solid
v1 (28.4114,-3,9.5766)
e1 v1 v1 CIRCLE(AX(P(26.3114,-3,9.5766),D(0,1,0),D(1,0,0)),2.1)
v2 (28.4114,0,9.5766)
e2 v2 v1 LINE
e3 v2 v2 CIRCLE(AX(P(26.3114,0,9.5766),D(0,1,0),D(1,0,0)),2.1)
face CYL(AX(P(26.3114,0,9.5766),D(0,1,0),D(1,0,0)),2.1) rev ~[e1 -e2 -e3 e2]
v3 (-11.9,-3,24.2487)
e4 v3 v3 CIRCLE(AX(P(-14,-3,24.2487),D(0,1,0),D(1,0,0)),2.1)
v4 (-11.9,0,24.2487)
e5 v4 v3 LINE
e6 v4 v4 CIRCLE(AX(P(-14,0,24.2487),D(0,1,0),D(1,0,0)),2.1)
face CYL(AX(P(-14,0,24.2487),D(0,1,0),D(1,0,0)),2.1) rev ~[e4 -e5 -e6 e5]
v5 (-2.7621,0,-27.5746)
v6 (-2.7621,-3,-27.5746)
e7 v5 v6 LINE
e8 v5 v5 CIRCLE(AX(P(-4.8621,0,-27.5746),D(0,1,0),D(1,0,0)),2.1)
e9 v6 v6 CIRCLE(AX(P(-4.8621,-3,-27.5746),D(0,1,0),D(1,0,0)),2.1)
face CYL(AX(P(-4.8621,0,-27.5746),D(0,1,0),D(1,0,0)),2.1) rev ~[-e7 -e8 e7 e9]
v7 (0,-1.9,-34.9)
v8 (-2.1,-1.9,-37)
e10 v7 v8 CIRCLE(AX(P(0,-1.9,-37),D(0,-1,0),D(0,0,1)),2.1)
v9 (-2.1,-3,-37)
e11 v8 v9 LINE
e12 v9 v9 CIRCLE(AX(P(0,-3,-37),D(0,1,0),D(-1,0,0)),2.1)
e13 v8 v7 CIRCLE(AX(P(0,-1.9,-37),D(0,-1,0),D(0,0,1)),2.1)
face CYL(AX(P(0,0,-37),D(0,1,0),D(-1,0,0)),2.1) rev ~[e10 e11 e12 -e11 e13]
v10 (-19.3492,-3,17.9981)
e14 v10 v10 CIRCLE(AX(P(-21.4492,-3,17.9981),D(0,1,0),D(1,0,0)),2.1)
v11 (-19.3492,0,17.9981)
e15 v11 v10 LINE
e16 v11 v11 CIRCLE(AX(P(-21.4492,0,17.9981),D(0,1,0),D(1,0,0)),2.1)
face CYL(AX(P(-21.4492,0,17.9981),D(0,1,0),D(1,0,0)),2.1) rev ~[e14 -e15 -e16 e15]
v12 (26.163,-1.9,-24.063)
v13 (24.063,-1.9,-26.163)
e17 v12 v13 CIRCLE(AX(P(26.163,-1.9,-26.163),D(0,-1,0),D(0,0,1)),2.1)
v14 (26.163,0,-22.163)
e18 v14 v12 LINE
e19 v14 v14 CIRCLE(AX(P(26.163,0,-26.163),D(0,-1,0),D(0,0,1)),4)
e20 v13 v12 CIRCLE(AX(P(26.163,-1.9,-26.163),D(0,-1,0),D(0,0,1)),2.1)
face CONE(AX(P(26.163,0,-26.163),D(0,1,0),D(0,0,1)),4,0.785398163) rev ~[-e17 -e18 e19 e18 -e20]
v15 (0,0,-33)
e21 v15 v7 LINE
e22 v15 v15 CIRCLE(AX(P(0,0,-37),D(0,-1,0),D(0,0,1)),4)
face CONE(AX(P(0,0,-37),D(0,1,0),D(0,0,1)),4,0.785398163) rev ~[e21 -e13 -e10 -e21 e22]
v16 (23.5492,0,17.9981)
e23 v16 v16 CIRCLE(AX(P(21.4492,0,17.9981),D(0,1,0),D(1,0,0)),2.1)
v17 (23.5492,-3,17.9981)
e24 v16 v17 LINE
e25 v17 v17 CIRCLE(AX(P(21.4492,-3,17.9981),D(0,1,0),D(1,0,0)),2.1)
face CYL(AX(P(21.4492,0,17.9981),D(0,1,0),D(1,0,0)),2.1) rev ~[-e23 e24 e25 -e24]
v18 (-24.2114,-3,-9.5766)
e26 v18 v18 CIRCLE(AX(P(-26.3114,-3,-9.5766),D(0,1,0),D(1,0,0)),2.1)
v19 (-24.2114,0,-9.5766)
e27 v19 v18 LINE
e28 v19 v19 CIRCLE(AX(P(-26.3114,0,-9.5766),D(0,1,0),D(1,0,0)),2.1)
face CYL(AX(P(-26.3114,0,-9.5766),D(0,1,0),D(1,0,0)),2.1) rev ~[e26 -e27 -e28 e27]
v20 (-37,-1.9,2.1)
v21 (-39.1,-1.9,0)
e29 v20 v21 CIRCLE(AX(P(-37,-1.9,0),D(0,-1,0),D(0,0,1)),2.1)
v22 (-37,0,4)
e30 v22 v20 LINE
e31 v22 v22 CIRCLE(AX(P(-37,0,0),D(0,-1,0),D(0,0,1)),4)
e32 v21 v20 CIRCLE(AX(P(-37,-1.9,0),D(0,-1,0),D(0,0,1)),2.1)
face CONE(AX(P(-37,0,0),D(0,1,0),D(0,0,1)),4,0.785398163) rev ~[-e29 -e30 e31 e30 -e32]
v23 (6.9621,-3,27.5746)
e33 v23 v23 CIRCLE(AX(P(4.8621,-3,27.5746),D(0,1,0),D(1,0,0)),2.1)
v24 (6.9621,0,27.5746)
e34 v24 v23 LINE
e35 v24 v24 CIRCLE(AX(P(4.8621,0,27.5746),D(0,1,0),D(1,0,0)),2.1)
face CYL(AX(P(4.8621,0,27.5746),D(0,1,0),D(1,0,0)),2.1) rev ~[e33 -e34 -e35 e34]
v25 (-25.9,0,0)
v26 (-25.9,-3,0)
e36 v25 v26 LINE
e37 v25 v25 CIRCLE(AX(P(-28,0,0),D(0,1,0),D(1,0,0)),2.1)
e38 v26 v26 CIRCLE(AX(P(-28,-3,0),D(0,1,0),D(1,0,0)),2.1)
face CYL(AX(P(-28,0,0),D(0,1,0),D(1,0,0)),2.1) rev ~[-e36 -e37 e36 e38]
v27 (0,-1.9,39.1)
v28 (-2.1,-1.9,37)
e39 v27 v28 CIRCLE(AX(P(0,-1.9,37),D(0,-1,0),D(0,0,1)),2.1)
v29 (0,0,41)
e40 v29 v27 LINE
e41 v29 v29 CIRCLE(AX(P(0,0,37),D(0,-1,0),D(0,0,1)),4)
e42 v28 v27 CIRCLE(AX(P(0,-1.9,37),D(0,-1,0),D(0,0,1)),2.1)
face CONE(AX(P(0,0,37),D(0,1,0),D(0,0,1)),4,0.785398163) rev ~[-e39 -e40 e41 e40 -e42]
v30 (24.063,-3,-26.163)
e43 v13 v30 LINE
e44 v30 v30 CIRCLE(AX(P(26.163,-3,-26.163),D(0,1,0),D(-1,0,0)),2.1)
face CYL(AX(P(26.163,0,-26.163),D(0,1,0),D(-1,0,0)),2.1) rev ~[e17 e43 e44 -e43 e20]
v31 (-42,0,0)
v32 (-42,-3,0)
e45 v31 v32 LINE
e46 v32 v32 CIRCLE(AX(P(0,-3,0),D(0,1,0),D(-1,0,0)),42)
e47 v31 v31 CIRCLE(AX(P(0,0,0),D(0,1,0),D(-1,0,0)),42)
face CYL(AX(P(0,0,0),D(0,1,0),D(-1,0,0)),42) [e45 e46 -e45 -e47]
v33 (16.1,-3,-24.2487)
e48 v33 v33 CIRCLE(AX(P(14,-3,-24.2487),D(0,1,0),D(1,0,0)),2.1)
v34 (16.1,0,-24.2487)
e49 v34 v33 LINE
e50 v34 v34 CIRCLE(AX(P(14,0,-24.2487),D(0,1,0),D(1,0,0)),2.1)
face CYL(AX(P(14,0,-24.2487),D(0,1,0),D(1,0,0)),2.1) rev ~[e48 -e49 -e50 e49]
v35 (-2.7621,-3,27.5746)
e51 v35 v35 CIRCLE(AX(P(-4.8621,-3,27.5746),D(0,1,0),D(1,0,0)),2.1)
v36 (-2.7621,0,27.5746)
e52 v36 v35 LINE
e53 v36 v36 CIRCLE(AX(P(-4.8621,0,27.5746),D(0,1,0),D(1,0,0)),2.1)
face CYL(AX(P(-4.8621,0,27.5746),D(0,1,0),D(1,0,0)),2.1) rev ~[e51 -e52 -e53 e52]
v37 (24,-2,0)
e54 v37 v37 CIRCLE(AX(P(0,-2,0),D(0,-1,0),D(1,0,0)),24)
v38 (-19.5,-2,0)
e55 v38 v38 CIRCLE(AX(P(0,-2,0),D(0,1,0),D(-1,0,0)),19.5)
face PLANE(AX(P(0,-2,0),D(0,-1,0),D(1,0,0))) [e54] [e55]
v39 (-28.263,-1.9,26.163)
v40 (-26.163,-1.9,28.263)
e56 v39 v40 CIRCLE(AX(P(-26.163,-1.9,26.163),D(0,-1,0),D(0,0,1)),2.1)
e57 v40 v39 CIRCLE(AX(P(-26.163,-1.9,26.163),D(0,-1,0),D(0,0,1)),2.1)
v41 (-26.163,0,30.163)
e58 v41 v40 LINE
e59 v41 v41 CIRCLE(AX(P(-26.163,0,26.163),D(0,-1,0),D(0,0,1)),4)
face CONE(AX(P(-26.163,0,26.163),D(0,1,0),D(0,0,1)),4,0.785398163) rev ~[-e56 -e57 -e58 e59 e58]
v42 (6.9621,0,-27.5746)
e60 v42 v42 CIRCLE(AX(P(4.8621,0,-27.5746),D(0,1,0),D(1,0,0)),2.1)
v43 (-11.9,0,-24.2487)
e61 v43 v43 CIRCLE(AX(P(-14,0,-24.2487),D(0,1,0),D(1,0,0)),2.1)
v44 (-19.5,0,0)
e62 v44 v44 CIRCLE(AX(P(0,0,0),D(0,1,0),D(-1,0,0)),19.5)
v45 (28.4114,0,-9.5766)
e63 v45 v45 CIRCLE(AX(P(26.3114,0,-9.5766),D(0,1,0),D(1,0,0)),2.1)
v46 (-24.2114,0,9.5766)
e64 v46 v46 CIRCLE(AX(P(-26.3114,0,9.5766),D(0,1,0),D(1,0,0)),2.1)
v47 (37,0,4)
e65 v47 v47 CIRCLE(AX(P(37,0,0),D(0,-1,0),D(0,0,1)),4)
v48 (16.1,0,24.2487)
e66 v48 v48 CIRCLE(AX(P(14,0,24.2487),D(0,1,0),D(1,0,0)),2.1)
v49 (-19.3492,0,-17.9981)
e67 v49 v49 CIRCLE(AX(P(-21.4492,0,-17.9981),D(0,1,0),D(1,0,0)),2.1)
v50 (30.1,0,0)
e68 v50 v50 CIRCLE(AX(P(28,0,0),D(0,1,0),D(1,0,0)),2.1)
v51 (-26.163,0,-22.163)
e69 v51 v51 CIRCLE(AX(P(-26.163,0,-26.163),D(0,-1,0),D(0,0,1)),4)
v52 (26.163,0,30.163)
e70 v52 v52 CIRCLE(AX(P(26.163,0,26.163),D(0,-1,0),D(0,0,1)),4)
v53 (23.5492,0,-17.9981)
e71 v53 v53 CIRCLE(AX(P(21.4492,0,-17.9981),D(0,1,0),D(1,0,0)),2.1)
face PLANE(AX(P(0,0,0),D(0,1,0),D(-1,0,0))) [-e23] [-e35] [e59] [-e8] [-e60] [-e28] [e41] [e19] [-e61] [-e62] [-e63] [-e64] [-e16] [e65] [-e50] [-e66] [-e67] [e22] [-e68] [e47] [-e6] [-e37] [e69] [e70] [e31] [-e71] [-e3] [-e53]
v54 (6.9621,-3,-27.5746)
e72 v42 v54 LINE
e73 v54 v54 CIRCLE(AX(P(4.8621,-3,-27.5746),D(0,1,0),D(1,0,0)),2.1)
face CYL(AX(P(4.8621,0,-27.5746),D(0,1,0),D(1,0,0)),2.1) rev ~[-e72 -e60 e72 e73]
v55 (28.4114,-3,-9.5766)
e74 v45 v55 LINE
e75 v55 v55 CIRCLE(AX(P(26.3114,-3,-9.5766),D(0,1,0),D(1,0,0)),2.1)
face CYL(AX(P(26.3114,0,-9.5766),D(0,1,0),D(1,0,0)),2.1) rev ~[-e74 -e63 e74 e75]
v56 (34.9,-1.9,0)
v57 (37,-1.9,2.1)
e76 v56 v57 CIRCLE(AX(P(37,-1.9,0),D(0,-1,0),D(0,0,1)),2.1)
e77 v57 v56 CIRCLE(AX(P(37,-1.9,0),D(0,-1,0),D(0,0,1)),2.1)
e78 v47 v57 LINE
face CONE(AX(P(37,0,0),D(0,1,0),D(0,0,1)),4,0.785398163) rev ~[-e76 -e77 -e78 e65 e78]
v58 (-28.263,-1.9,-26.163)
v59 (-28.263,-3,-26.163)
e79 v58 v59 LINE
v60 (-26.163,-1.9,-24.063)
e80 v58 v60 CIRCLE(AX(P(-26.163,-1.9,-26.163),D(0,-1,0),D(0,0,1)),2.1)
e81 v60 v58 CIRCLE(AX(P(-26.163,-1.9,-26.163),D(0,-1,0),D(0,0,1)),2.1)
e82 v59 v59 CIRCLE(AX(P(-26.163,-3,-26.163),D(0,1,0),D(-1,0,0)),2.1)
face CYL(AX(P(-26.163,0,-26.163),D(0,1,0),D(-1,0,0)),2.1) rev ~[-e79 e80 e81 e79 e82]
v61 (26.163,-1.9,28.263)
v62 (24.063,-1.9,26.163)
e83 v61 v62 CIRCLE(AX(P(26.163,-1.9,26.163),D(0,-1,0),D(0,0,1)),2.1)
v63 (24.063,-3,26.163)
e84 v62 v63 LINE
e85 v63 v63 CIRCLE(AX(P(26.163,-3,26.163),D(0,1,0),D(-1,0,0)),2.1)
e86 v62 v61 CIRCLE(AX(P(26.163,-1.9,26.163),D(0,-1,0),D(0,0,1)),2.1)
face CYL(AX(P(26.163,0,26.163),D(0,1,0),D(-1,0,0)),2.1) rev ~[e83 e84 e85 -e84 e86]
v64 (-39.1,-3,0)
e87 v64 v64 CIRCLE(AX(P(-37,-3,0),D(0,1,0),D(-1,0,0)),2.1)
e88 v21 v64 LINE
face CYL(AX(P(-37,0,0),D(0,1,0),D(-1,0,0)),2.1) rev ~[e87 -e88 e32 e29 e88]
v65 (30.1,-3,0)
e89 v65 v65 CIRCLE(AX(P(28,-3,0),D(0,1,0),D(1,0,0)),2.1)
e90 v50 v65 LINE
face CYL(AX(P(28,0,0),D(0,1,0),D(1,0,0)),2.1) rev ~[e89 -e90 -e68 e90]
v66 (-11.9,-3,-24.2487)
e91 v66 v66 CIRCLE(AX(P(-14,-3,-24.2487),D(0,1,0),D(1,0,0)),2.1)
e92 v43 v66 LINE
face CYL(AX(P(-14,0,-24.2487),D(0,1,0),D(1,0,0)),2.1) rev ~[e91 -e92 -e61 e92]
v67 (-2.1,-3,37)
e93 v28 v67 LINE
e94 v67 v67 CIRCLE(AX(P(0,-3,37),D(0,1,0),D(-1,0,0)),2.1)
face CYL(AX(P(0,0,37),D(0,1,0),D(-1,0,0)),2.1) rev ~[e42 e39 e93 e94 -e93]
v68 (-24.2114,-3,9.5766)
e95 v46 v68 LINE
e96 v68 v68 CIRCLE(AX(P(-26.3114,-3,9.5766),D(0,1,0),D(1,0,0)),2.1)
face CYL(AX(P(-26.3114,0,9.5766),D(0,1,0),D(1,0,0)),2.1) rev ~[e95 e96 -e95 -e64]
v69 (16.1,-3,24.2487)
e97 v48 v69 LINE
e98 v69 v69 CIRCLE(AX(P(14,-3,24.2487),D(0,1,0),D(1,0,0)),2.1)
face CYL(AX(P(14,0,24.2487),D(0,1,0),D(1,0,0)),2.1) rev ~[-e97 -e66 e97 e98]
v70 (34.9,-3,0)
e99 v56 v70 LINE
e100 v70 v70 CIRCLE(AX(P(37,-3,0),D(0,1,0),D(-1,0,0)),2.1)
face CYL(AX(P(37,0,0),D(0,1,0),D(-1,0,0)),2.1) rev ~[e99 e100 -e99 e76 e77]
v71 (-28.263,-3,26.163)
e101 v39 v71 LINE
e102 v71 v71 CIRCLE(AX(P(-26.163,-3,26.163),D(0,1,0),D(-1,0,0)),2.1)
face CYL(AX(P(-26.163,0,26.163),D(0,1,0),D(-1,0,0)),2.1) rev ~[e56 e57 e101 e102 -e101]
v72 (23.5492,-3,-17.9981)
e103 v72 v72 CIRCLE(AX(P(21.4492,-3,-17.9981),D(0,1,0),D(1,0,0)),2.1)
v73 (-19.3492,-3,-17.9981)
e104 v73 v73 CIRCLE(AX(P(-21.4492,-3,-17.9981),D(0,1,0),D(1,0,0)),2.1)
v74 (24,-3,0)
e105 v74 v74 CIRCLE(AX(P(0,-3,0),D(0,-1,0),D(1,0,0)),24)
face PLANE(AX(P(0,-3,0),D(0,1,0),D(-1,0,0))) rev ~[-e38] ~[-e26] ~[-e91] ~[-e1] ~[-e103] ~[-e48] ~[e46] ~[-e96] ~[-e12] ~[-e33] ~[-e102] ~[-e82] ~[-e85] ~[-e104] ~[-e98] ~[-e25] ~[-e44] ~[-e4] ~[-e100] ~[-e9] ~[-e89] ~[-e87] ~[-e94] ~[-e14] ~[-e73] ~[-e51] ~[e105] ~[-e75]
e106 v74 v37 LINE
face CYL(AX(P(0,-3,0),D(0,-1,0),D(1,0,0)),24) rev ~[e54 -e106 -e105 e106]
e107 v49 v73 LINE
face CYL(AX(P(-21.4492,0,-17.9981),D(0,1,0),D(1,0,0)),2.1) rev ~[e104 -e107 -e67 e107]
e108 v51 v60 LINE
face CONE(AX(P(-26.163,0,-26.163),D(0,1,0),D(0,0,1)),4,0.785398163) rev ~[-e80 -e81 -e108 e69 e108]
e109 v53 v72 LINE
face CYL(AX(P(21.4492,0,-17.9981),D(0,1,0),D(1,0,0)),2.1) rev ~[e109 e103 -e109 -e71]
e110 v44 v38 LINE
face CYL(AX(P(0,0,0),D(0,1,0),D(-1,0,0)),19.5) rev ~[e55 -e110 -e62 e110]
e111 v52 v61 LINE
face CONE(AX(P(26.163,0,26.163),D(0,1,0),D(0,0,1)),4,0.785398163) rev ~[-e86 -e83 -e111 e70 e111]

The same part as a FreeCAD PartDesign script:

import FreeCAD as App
import Part
import Sketcher

V = App.Vector
Q = App.Units.Quantity

doc = App.newDocument("Part")
params = doc.addObject("Spreadsheet::Sheet", "Params")
for row, (alias, value) in enumerate([
    ("sketch1_diameter", "84 mm"),
    ("sketch1_diameter2", "39 mm"),
    ("sketch1_diameter3", "4.2 mm"),
    ("pad1_length", "3 mm"),
    ("sketch2_diameter", "48 mm"),
    ("pocket1_length", "1 mm"),
    ("sketch3_diameter", "4.2 mm"),
    ("hole_diameter", "4.2 mm"),
    ("hole_csink_diameter", "8 mm"),
    ("sketch4_diameter", "4.2 mm"),
], start=1):
    params.set(f"A{row}", alias)
    params.set(f"B{row}", "=" + value)
    params.setAlias(f"B{row}", alias)

body = doc.addObject("PartDesign::Body", "Body")

# Sketch on XZ plane
sketch1 = body.newObject("Sketcher::SketchObject", "Sketch")
sketch1.AttachmentSupport = (doc.getObject("XZ_Plane"), [""])
sketch1.MapMode = "FlatFace"
sketch1.addGeometry([
    Part.Circle(V(0, 0, 0), V(0, 0, 1), 42),  # 0
    Part.Circle(V(26.2, -26.2, 0), V(0, 0, 1), 2.1),  # 1
    Part.Circle(V(0, -37, 0), V(0, 0, 1), 2.1),  # 2
    Part.Circle(V(-26.2, -26.2, 0), V(0, 0, 1), 2.1),  # 3
    Part.Circle(V(37, 0, 0), V(0, 0, 1), 2.1),  # 4
    Part.Circle(V(26.2, 26.2, 0), V(0, 0, 1), 2.1),  # 5
    Part.Circle(V(0, 0, 0), V(0, 0, 1), 19.5),  # 6
    Part.Circle(V(-37, 0, 0), V(0, 0, 1), 2.1),  # 7
    Part.Circle(V(0, 37, 0), V(0, 0, 1), 2.1),  # 8
    Part.Circle(V(-26.2, 26.2, 0), V(0, 0, 1), 2.1),  # 9
], False)
sketch1.addConstraint([
    Sketcher.Constraint("Coincident", 0, 3, -1, 1),
    Sketcher.Constraint("Coincident", 6, 3, -1, 1),
    Sketcher.Constraint("Equal", 1, 2),
    Sketcher.Constraint("Equal", 2, 3),
    Sketcher.Constraint("Equal", 3, 4),
    Sketcher.Constraint("Equal", 4, 5),
    Sketcher.Constraint("Equal", 5, 7),
    Sketcher.Constraint("Equal", 7, 8),
    Sketcher.Constraint("Equal", 8, 9),
    Sketcher.Constraint("Symmetric", 3, 3, 5, 3, -1, 1),
    Sketcher.Constraint("Symmetric", 4, 3, 7, 3, -1, 1),
    Sketcher.Constraint("Symmetric", 2, 3, 8, 3, -1, 1),
    Sketcher.Constraint("Symmetric", 1, 3, 9, 3, -1, 1),
    Sketcher.Constraint("Symmetric", 1, 3, 3, 3, -2),
    Sketcher.Constraint("PointOnObject", 2, 3, -2),
    Sketcher.Constraint("PointOnObject", 4, 3, -1),
    Sketcher.Constraint("Diameter", 0, Q("84 mm")),
    Sketcher.Constraint("Diameter", 6, Q("39 mm")),
    Sketcher.Constraint("Diameter", 1, Q("4.2 mm")),
    Sketcher.Constraint("DistanceY", 2, 3, -1, 1, Q("37 mm")),
    Sketcher.Constraint("DistanceX", -1, 1, 4, 3, Q("37 mm")),
    Sketcher.Constraint("DistanceX", -1, 1, 1, 3, Q("26.163 mm")),
    Sketcher.Constraint("DistanceY", 1, 3, -1, 1, Q("26.163 mm")),
])
sketch1.setExpression("Constraints[16]", "Params.sketch1_diameter")
sketch1.setExpression("Constraints[17]", "Params.sketch1_diameter2")
sketch1.setExpression("Constraints[18]", "Params.sketch1_diameter3")
pad1 = body.newObject("PartDesign::Pad", "Pad")
pad1.Profile = sketch1
pad1.setExpression("Length", "Params.pad1_length")

# Sketch on XZ plane
sketch2 = body.newObject("Sketcher::SketchObject", "Sketch001")
sketch2.AttachmentSupport = (doc.getObject("XZ_Plane"), [""])
sketch2.MapMode = "FlatFace"
sketch2.AttachmentOffset = App.Placement(V(0, 0, 3), App.Rotation())
sketch2.addGeometry(Part.Circle(V(0, 0, 0), V(0, 0, 1), 24), False)
sketch2.addConstraint([
    Sketcher.Constraint("Coincident", 0, 3, -1, 1),
    Sketcher.Constraint("Diameter", 0, Q("48 mm")),
])
sketch2.setExpression("Constraints[1]", "Params.sketch2_diameter")
pocket1 = body.newObject("PartDesign::Pocket", "Pocket")
pocket1.Profile = sketch2
pocket1.setExpression("Length", "Params.pocket1_length")

# Sketch on XZ plane
sketch3 = body.newObject("Sketcher::SketchObject", "Sketch002")
sketch3.AttachmentSupport = (doc.getObject("XZ_Plane"), [""])
sketch3.MapMode = "FlatFace"
sketch3.addGeometry([
    Part.Circle(V(37, 0, 0), V(0, 0, 1), 2.1),  # 0
    Part.Circle(V(26.2, 26.2, 0), V(0, 0, 1), 2.1),  # 1
    Part.Circle(V(0, 37, 0), V(0, 0, 1), 2.1),  # 2
    Part.Circle(V(-26.2, 26.2, 0), V(0, 0, 1), 2.1),  # 3
    Part.Circle(V(-37, 0, 0), V(0, 0, 1), 2.1),  # 4
    Part.Circle(V(-26.2, -26.2, 0), V(0, 0, 1), 2.1),  # 5
    Part.Circle(V(0, -37, 0), V(0, 0, 1), 2.1),  # 6
    Part.Circle(V(26.2, -26.2, 0), V(0, 0, 1), 2.1),  # 7
], False)
sketch3.addConstraint([
    Sketcher.Constraint("Equal", 0, 1),
    Sketcher.Constraint("Equal", 1, 2),
    Sketcher.Constraint("Equal", 2, 3),
    Sketcher.Constraint("Equal", 3, 4),
    Sketcher.Constraint("Equal", 4, 5),
    Sketcher.Constraint("Equal", 5, 6),
    Sketcher.Constraint("Equal", 6, 7),
    Sketcher.Constraint("Symmetric", 0, 3, 4, 3, -1, 1),
    Sketcher.Constraint("Symmetric", 1, 3, 5, 3, -1, 1),
    Sketcher.Constraint("Symmetric", 2, 3, 6, 3, -1, 1),
    Sketcher.Constraint("Symmetric", 3, 3, 7, 3, -1, 1),
    Sketcher.Constraint("Symmetric", 1, 3, 3, 3, -2),
    Sketcher.Constraint("PointOnObject", 0, 3, -1),
    Sketcher.Constraint("PointOnObject", 2, 3, -2),
    Sketcher.Constraint("Diameter", 0, Q("4.2 mm")),
    Sketcher.Constraint("DistanceX", -1, 1, 0, 3, Q("37 mm")),
    Sketcher.Constraint("DistanceY", -1, 1, 2, 3, Q("37 mm")),
    Sketcher.Constraint("DistanceX", -1, 1, 1, 3, Q("26.163 mm")),
    Sketcher.Constraint("DistanceY", -1, 1, 1, 3, Q("26.163 mm")),
])
sketch3.setExpression("Constraints[14]", "Params.sketch3_diameter")
doc.recompute()
hole = body.newObject("PartDesign::Hole", "Hole")
hole.Profile = sketch3
hole.ThreadType = "None"
hole.setExpression("Diameter", "Params.hole_diameter")
hole.DepthType = "ThroughAll"
hole.HoleCutType = "Countersink"
hole.setExpression("HoleCutDiameter", "Params.hole_csink_diameter")
hole.HoleCutCountersinkAngle = 90
hole.Reversed = True

# Sketch on XZ plane
sketch4 = body.newObject("Sketcher::SketchObject", "Sketch003")
sketch4.AttachmentSupport = (doc.getObject("XZ_Plane"), [""])
sketch4.MapMode = "FlatFace"
sketch4.addGeometry([
    Part.Circle(V(-4.9, 27.6, 0), V(0, 0, 1), 2.1),  # 0
    Part.Circle(V(4.9, 27.6, 0), V(0, 0, 1), 2.1),  # 1
    Part.Circle(V(14, 24.2, 0), V(0, 0, 1), 2.1),  # 2
    Part.Circle(V(21.4, 18, 0), V(0, 0, 1), 2.1),  # 3
    Part.Circle(V(26.3, 9.6, 0), V(0, 0, 1), 2.1),  # 4
    Part.Circle(V(28, 0, 0), V(0, 0, 1), 2.1),  # 5
    Part.Circle(V(26.3, -9.6, 0), V(0, 0, 1), 2.1),  # 6
    Part.Circle(V(21.4, -18, 0), V(0, 0, 1), 2.1),  # 7
    Part.Circle(V(14, -24.2, 0), V(0, 0, 1), 2.1),  # 8
    Part.Circle(V(4.9, -27.6, 0), V(0, 0, 1), 2.1),  # 9
    Part.Circle(V(-4.9, -27.6, 0), V(0, 0, 1), 2.1),  # 10
    Part.Circle(V(-14, -24.2, 0), V(0, 0, 1), 2.1),  # 11
    Part.Circle(V(-21.4, -18, 0), V(0, 0, 1), 2.1),  # 12
    Part.Circle(V(-26.3, -9.6, 0), V(0, 0, 1), 2.1),  # 13
    Part.Circle(V(-28, 0, 0), V(0, 0, 1), 2.1),  # 14
    Part.Circle(V(-26.3, 9.6, 0), V(0, 0, 1), 2.1),  # 15
    Part.Circle(V(-21.4, 18, 0), V(0, 0, 1), 2.1),  # 16
    Part.Circle(V(-14, 24.2, 0), V(0, 0, 1), 2.1),  # 17
], False)
sketch4.addConstraint([
    Sketcher.Constraint("Equal", 0, 1),
    Sketcher.Constraint("Equal", 1, 2),
    Sketcher.Constraint("Equal", 2, 3),
    Sketcher.Constraint("Equal", 3, 4),
    Sketcher.Constraint("Equal", 4, 5),
    Sketcher.Constraint("Equal", 5, 6),
    Sketcher.Constraint("Equal", 6, 7),
    Sketcher.Constraint("Equal", 7, 8),
    Sketcher.Constraint("Equal", 8, 9),
    Sketcher.Constraint("Equal", 9, 10),
    Sketcher.Constraint("Equal", 10, 11),
    Sketcher.Constraint("Equal", 11, 12),
    Sketcher.Constraint("Equal", 12, 13),
    Sketcher.Constraint("Equal", 13, 14),
    Sketcher.Constraint("Equal", 14, 15),
    Sketcher.Constraint("Equal", 15, 16),
    Sketcher.Constraint("Equal", 16, 17),
    Sketcher.Constraint("Symmetric", 0, 3, 9, 3, -1, 1),
    Sketcher.Constraint("Symmetric", 1, 3, 10, 3, -1, 1),
    Sketcher.Constraint("Symmetric", 2, 3, 11, 3, -1, 1),
    Sketcher.Constraint("Symmetric", 3, 3, 12, 3, -1, 1),
    Sketcher.Constraint("Symmetric", 4, 3, 13, 3, -1, 1),
    Sketcher.Constraint("Symmetric", 5, 3, 14, 3, -1, 1),
    Sketcher.Constraint("Symmetric", 6, 3, 15, 3, -1, 1),
    Sketcher.Constraint("Symmetric", 7, 3, 16, 3, -1, 1),
    Sketcher.Constraint("Symmetric", 8, 3, 17, 3, -1, 1),
    Sketcher.Constraint("Symmetric", 0, 3, 1, 3, -2),
    Sketcher.Constraint("Symmetric", 8, 3, 11, 3, -2),
    Sketcher.Constraint("Symmetric", 7, 3, 12, 3, -2),
    Sketcher.Constraint("Symmetric", 6, 3, 13, 3, -2),
    Sketcher.Constraint("PointOnObject", 5, 3, -1),
    Sketcher.Constraint("Diameter", 0, Q("4.2 mm")),
    Sketcher.Constraint("DistanceX", -1, 1, 5, 3, Q("28 mm")),
    Sketcher.Constraint("DistanceX", 11, 3, 8, 3, Q("28 mm")),
    Sketcher.Constraint("DistanceX", 0, 3, -1, 1, Q("4.862 mm")),
    Sketcher.Constraint("DistanceY", -1, 1, 3, 3, Q("17.998 mm")),
    Sketcher.Constraint("DistanceY", 2, 3, 1, 3, Q("3.326 mm")),
    Sketcher.Constraint("DistanceX", 1, 3, 3, 3, Q("16.587 mm")),
    Sketcher.Constraint("DistanceY", 4, 3, 2, 3, Q("14.672 mm")),
    Sketcher.Constraint("DistanceY", -1, 1, 0, 3, Q("27.5746 mm")),
    Sketcher.Constraint("DistanceX", -1, 1, 4, 3, Q("26.3114 mm")),
])
sketch4.setExpression("Constraints[31]", "Params.sketch4_diameter")
pocket2 = body.newObject("PartDesign::Pocket", "Pocket001")
pocket2.Profile = sketch4
pocket2.Type = "ThroughAll"
pocket2.Reversed = True

doc.recompute()
